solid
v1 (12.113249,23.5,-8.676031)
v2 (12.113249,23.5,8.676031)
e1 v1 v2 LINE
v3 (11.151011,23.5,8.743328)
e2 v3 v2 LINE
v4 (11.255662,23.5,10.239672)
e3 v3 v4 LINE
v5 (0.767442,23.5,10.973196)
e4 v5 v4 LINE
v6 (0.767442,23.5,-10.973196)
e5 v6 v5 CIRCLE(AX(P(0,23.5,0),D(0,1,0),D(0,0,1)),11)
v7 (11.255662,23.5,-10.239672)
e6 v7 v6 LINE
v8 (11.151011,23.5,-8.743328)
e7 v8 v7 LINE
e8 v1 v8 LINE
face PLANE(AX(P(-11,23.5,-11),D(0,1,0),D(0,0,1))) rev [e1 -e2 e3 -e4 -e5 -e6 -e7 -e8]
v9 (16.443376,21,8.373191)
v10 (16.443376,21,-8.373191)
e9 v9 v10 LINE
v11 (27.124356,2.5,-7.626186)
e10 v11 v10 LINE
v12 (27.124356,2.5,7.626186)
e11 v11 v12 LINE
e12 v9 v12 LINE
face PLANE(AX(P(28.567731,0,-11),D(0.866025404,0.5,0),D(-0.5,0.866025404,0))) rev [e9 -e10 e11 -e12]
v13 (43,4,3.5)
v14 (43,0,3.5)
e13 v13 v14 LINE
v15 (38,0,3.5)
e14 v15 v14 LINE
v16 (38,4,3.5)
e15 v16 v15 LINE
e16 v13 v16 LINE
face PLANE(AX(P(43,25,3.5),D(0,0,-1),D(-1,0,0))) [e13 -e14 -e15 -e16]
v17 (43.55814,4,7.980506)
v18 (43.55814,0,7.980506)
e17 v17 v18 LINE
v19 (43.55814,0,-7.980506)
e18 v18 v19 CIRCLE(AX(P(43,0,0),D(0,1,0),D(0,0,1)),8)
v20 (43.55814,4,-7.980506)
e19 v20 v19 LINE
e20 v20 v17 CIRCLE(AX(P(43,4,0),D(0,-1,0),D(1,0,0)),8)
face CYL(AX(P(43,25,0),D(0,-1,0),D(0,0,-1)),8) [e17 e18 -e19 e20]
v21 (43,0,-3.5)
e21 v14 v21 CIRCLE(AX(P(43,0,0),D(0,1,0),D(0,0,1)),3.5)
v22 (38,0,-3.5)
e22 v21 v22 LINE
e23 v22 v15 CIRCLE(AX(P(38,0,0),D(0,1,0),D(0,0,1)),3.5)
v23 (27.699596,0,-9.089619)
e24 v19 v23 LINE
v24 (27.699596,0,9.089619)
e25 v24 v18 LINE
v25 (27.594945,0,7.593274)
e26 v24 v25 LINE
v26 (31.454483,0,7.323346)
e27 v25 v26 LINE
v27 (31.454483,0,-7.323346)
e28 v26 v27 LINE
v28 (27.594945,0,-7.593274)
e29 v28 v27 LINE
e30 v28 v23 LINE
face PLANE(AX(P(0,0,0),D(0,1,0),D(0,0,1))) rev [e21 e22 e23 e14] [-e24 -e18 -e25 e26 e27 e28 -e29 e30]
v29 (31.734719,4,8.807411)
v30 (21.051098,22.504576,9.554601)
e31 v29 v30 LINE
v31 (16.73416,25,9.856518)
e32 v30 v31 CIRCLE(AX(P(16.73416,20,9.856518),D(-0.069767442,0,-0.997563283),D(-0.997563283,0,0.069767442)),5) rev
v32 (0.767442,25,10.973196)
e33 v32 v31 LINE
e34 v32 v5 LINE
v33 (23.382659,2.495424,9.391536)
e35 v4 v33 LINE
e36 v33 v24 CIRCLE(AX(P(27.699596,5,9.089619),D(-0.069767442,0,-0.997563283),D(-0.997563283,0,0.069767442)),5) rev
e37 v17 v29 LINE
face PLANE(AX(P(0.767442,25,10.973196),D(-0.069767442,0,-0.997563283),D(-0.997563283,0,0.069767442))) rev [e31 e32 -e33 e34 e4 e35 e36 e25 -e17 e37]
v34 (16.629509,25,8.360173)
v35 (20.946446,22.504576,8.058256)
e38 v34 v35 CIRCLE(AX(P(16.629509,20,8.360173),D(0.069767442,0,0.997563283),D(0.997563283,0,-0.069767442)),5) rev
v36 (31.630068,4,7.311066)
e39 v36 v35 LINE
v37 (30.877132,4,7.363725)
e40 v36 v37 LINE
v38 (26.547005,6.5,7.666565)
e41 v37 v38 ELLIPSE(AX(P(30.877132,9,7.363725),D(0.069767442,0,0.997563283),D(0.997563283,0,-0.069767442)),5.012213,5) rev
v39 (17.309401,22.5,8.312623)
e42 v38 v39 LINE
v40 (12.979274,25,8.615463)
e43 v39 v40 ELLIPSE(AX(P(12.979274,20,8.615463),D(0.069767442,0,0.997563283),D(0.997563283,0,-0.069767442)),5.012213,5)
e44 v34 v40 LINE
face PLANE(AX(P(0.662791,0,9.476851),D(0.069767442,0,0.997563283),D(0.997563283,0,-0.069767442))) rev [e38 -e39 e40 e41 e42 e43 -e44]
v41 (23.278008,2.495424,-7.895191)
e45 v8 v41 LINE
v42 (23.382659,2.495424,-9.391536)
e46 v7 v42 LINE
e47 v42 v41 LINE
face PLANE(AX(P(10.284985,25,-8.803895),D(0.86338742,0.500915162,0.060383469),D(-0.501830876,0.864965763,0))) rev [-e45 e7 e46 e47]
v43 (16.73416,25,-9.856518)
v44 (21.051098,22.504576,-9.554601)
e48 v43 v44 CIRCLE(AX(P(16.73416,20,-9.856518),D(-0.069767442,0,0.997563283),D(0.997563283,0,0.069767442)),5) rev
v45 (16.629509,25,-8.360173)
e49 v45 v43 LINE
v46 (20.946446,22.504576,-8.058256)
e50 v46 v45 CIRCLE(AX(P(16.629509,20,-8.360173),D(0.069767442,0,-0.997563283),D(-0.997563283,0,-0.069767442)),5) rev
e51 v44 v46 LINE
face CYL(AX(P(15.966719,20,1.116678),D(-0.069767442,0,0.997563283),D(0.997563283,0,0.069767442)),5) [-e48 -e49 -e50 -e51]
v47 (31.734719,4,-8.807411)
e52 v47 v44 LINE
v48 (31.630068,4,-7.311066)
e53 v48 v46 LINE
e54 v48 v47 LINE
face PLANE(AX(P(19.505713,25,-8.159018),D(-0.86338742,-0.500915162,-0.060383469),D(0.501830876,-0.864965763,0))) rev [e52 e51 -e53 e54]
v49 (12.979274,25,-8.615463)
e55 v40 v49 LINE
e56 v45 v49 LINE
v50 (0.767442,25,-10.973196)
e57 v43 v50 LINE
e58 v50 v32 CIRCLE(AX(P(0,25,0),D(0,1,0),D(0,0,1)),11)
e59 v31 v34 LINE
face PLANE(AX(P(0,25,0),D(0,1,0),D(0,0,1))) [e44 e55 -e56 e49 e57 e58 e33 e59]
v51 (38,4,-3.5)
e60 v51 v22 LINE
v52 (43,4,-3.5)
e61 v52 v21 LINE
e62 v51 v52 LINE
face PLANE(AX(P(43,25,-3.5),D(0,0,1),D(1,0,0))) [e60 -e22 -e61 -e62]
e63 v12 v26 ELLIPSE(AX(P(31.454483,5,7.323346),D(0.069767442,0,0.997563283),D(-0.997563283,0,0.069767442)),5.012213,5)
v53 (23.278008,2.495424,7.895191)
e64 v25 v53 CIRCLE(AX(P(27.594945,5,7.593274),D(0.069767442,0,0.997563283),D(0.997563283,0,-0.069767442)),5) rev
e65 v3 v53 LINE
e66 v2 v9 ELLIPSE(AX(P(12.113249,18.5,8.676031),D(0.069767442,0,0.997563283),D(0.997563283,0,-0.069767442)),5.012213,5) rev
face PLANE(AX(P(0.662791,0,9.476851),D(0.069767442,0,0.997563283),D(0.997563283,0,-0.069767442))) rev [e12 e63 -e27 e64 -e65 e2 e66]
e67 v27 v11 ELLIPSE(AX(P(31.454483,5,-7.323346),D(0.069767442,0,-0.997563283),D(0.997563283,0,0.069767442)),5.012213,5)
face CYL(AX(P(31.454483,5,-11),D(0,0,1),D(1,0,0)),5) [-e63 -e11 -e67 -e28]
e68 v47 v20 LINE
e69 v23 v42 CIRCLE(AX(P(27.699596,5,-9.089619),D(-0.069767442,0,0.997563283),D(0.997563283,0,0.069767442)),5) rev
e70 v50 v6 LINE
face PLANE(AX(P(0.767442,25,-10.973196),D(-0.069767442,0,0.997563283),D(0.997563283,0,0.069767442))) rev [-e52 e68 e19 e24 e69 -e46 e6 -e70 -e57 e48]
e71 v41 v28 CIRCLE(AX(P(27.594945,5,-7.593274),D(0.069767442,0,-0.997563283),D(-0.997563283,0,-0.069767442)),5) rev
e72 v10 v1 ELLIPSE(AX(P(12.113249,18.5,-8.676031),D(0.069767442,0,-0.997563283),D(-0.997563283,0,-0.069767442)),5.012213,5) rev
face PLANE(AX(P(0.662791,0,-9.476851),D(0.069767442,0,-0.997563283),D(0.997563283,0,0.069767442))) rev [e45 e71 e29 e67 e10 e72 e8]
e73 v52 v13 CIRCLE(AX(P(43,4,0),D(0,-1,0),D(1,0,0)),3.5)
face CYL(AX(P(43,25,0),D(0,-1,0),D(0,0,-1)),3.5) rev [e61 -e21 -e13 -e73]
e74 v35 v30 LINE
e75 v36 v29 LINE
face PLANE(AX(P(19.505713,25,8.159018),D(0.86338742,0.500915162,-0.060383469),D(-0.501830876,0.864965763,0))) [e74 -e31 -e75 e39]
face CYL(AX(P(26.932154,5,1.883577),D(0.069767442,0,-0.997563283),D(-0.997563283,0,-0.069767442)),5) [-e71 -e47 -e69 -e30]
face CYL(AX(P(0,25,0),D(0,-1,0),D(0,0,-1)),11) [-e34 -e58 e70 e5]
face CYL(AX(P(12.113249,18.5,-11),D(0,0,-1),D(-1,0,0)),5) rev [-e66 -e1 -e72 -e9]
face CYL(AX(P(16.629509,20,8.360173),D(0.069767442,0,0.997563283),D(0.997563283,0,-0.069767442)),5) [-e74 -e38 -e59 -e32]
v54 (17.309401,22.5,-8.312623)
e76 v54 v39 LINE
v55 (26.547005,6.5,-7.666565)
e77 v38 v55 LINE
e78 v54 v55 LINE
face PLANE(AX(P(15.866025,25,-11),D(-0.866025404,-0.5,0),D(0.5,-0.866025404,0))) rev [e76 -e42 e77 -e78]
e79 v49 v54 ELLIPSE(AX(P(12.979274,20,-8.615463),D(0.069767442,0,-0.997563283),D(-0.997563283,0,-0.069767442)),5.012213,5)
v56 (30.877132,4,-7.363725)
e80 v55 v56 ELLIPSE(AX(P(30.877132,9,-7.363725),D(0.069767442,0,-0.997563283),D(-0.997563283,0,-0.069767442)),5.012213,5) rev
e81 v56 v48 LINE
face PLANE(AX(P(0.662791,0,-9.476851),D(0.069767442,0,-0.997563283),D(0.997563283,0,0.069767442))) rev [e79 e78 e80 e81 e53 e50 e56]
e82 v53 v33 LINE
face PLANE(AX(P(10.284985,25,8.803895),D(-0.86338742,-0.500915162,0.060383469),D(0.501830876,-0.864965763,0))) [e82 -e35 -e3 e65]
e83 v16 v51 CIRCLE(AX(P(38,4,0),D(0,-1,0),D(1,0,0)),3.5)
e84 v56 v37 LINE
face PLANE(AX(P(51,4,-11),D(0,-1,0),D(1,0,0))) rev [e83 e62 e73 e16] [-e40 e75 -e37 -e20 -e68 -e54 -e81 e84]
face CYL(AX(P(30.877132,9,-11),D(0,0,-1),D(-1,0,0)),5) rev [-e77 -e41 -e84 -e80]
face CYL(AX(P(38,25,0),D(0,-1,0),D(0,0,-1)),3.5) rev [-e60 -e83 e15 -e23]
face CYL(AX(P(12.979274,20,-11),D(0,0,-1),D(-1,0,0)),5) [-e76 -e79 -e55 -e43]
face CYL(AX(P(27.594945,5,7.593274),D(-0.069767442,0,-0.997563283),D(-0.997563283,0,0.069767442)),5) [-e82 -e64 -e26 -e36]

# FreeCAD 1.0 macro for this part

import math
import FreeCAD as App
import Part
import Sketcher
Q = App.Units.Quantity


def edges_at(feature, points):
    """Names of the edges that pass closest to the given points."""
    edges = feature.Shape.Edges
    near = lambda p: min(range(len(edges)), key=lambda i: edges[i].distToShape(Part.Vertex(*p))[0])
    return sorted({f"Edge{near(p) + 1}" for p in points})

doc = App.newDocument("Part")
body = doc.addObject("PartDesign::Body", "Body")

# Sketch on XZ plane
sketch1 = body.newObject("Sketcher::SketchObject", "Sketch")
sketch1.AttachmentSupport = (doc.getObject("XZ_Plane"), [""])
sketch1.MapMode = "FlatFace"
sketch1.addGeometry([
    Part.LineSegment(App.Vector(43.6, -8, 0), App.Vector(0.8, -11, 0)),  # 0
    Part.ArcOfCircle(Part.Circle(App.Vector(0, 0, 0), App.Vector(0, 0, 1), 11), math.radians(86), math.radians(274)),  # 1
    Part.LineSegment(App.Vector(0.8, 11, 0), App.Vector(43.6, 8, 0)),  # 2
    Part.ArcOfCircle(Part.Circle(App.Vector(43, 0, 0), App.Vector(0, 0, 1), 8), math.radians(-86), math.radians(86)),  # 3
    Part.LineSegment(App.Vector(43, 3.5, 0), App.Vector(38, 3.5, 0)),  # 4
    Part.ArcOfCircle(Part.Circle(App.Vector(38, 0, 0), App.Vector(0, 0, 1), 3.5), math.radians(90), math.radians(270)),  # 5
    Part.LineSegment(App.Vector(38, -3.5, 0), App.Vector(43, -3.5, 0)),  # 6
    Part.ArcOfCircle(Part.Circle(App.Vector(43, 0, 0), App.Vector(0, 0, 1), 3.5), math.radians(-90), math.radians(90)),  # 7
], False)
sketch1.addConstraint([
    Sketcher.Constraint("Tangent", 0, 2, 1, 2),
    Sketcher.Constraint("Tangent", 1, 1, 2, 1),
    Sketcher.Constraint("Tangent", 2, 2, 3, 2),
    Sketcher.Constraint("Tangent", 3, 1, 0, 1),
    Sketcher.Constraint("Tangent", 4, 2, 5, 1),
    Sketcher.Constraint("Tangent", 5, 2, 6, 1),
    Sketcher.Constraint("Tangent", 6, 2, 7, 1),
    Sketcher.Constraint("Tangent", 7, 2, 4, 1),
    Sketcher.Constraint("Horizontal", 4),
    Sketcher.Constraint("Horizontal", 6),
    Sketcher.Constraint("Coincident", 1, 3, -1, 1),
    Sketcher.Constraint("Coincident", 7, 3, 3, 3),
    Sketcher.Constraint("PointOnObject", 3, 3, -1),
    Sketcher.Constraint("Radius", 1, Q("11 mm")),
    Sketcher.Constraint("Radius", 3, Q("8 mm")),
    Sketcher.Constraint("Radius", 5, Q("3.5 mm")),
    Sketcher.Constraint("DistanceX", 4, 2, 4, 1, Q("5 mm")),
    Sketcher.Constraint("DistanceX", -1, 1, 3, 3, Q("43 mm")),
])
pad1 = body.newObject("PartDesign::Pad", "Pad")
pad1.Profile = sketch1
pad1.Length = 25
pad1.Reversed = True

# Sketch on XY plane
sketch2 = body.newObject("Sketcher::SketchObject", "Sketch001")
sketch2.AttachmentSupport = (doc.getObject("XY_Plane"), [""])
sketch2.MapMode = "FlatFace"
sketch2.addGeometry([
    Part.LineSegment(App.Vector(-11, 0, 0), App.Vector(29, 0, 0)),  # 0
    Part.LineSegment(App.Vector(29, 0, 0), App.Vector(15, 24, 0)),  # 1
    Part.LineSegment(App.Vector(15, 24, 0), App.Vector(-11, 24, 0)),  # 2
    Part.LineSegment(App.Vector(-11, 24, 0), App.Vector(-11, 0, 0)),  # 3
    Part.LineSegment(App.Vector(51, 25, 0), App.Vector(16, 25, 0)),  # 4
    Part.LineSegment(App.Vector(16, 25, 0), App.Vector(28, 4, 0)),  # 5
    Part.LineSegment(App.Vector(28, 4, 0), App.Vector(51, 4, 0)),  # 6
    Part.LineSegment(App.Vector(51, 4, 0), App.Vector(51, 25, 0)),  # 7
], False)
sketch2.addConstraint([
    Sketcher.Constraint("Coincident", 0, 2, 1, 1),
    Sketcher.Constraint("Coincident", 1, 2, 2, 1),
    Sketcher.Constraint("Coincident", 2, 2, 3, 1),
    Sketcher.Constraint("Coincident", 3, 2, 0, 1),
    Sketcher.Constraint("Coincident", 4, 2, 5, 1),
    Sketcher.Constraint("Coincident", 5, 2, 6, 1),
    Sketcher.Constraint("Coincident", 6, 2, 7, 1),
    Sketcher.Constraint("Coincident", 7, 2, 4, 1),
    Sketcher.Constraint("Horizontal", 0),
    Sketcher.Constraint("Horizontal", 2),
    Sketcher.Constraint("Vertical", 3),
    Sketcher.Constraint("Horizontal", 4),
    Sketcher.Constraint("Horizontal", 6),
    Sketcher.Constraint("Vertical", 7),
    Sketcher.Constraint("PointOnObject", 0, 2, -1),
    Sketcher.Constraint("Parallel", 1, 5),
    Sketcher.Constraint("DistanceX", 2, 2, 2, 1, Q("26 mm")),
    Sketcher.Constraint("DistanceY", 7, 1, 7, 2, Q("21 mm")),
    Sketcher.Constraint("Angle", 1, Q("120 deg")),
    Sketcher.Constraint("DistanceY", 3, 2, 3, 1, Q("23.5 mm")),
    Sketcher.Constraint("DistanceX", -1, 1, 1, 2, Q("15 mm")),
    Sketcher.Constraint("DistanceY", -1, 1, 4, 2, Q("25 mm")),
    Sketcher.Constraint("DistanceX", -1, 1, 6, 2, Q("51 mm")),
    Sketcher.Constraint("DistanceX", 6, 1, 6, 2, Q("23.009619 mm")),
])
pocket1 = body.newObject("PartDesign::Pocket", "Pocket")
pocket1.Profile = sketch2
pocket1.Type = "ThroughAll"
pocket1.Midplane = True

# Sketch on an angled plane
sketch3 = body.newObject("Sketcher::SketchObject", "Sketch002")
sketch3.Placement = App.Placement(App.Vector(0.767442, 0, 10.973196), App.Rotation(App.Vector(0.997563283, 0, -0.069767442), App.Vector(0, 1, 0), App.Vector(0.069767442, 0, 0.997563283), "ZXY"))
sketch3.addGeometry([
    Part.LineSegment(App.Vector(19, 25, 0), App.Vector(10, 25, 0)),
    Part.LineSegment(App.Vector(10, 25, 0), App.Vector(24, 0, 0)),
    Part.LineSegment(App.Vector(24, 0, 0), App.Vector(33, 0, 0)),
    Part.LineSegment(App.Vector(33, 0, 0), App.Vector(19, 25, 0)),
], False)
sketch3.addConstraint([
    Sketcher.Constraint("Coincident", 0, 2, 1, 1),
    Sketcher.Constraint("Coincident", 1, 2, 2, 1),
    Sketcher.Constraint("Coincident", 2, 2, 3, 1),
    Sketcher.Constraint("Coincident", 3, 2, 0, 1),
    Sketcher.Constraint("Horizontal", 0),
    Sketcher.Constraint("Horizontal", 2),
    Sketcher.Constraint("PointOnObject", 1, 2, -1),
    Sketcher.Constraint("Parallel", 1, 3),
    Sketcher.Constraint("DistanceY", -1, 1, 0, 2, Q("25 mm")),
    Sketcher.Constraint("DistanceX", 0, 2, 0, 1, Q("9.243251 mm")),
    Sketcher.Constraint("DistanceX", -1, 1, 0, 2, Q("9.645698 mm")),
    Sketcher.Constraint("Distance", 1, Q("28.885158 mm")),
])
pad2 = body.newObject("PartDesign::Pad", "Pad001")
pad2.Profile = sketch3
pad2.Length = 1.5
pad2.Reversed = True
doc.recompute()

mirrored = body.newObject("PartDesign::Mirrored", "Mirrored")
mirrored.Originals = [pad2]
mirrored.MirrorPlane = (doc.getObject("XY_Plane"), [""])
body.Tip = mirrored
doc.recompute()

fillet = body.newObject("PartDesign::Fillet", "Fillet")
fillet.Base = (mirrored, edges_at(mirrored, [
    (27.99, 4, 0),
    (15, 23.5, 0),
    (28.568, 0, 0),
    (15.866, 25, 0),
    (24.771, 0, -8.543),
    (19.558, 25, -8.907),
    (24.771, 0, 8.543),
    (19.558, 25, 8.907),
]))
fillet.Radius = 5

doc.recompute()
